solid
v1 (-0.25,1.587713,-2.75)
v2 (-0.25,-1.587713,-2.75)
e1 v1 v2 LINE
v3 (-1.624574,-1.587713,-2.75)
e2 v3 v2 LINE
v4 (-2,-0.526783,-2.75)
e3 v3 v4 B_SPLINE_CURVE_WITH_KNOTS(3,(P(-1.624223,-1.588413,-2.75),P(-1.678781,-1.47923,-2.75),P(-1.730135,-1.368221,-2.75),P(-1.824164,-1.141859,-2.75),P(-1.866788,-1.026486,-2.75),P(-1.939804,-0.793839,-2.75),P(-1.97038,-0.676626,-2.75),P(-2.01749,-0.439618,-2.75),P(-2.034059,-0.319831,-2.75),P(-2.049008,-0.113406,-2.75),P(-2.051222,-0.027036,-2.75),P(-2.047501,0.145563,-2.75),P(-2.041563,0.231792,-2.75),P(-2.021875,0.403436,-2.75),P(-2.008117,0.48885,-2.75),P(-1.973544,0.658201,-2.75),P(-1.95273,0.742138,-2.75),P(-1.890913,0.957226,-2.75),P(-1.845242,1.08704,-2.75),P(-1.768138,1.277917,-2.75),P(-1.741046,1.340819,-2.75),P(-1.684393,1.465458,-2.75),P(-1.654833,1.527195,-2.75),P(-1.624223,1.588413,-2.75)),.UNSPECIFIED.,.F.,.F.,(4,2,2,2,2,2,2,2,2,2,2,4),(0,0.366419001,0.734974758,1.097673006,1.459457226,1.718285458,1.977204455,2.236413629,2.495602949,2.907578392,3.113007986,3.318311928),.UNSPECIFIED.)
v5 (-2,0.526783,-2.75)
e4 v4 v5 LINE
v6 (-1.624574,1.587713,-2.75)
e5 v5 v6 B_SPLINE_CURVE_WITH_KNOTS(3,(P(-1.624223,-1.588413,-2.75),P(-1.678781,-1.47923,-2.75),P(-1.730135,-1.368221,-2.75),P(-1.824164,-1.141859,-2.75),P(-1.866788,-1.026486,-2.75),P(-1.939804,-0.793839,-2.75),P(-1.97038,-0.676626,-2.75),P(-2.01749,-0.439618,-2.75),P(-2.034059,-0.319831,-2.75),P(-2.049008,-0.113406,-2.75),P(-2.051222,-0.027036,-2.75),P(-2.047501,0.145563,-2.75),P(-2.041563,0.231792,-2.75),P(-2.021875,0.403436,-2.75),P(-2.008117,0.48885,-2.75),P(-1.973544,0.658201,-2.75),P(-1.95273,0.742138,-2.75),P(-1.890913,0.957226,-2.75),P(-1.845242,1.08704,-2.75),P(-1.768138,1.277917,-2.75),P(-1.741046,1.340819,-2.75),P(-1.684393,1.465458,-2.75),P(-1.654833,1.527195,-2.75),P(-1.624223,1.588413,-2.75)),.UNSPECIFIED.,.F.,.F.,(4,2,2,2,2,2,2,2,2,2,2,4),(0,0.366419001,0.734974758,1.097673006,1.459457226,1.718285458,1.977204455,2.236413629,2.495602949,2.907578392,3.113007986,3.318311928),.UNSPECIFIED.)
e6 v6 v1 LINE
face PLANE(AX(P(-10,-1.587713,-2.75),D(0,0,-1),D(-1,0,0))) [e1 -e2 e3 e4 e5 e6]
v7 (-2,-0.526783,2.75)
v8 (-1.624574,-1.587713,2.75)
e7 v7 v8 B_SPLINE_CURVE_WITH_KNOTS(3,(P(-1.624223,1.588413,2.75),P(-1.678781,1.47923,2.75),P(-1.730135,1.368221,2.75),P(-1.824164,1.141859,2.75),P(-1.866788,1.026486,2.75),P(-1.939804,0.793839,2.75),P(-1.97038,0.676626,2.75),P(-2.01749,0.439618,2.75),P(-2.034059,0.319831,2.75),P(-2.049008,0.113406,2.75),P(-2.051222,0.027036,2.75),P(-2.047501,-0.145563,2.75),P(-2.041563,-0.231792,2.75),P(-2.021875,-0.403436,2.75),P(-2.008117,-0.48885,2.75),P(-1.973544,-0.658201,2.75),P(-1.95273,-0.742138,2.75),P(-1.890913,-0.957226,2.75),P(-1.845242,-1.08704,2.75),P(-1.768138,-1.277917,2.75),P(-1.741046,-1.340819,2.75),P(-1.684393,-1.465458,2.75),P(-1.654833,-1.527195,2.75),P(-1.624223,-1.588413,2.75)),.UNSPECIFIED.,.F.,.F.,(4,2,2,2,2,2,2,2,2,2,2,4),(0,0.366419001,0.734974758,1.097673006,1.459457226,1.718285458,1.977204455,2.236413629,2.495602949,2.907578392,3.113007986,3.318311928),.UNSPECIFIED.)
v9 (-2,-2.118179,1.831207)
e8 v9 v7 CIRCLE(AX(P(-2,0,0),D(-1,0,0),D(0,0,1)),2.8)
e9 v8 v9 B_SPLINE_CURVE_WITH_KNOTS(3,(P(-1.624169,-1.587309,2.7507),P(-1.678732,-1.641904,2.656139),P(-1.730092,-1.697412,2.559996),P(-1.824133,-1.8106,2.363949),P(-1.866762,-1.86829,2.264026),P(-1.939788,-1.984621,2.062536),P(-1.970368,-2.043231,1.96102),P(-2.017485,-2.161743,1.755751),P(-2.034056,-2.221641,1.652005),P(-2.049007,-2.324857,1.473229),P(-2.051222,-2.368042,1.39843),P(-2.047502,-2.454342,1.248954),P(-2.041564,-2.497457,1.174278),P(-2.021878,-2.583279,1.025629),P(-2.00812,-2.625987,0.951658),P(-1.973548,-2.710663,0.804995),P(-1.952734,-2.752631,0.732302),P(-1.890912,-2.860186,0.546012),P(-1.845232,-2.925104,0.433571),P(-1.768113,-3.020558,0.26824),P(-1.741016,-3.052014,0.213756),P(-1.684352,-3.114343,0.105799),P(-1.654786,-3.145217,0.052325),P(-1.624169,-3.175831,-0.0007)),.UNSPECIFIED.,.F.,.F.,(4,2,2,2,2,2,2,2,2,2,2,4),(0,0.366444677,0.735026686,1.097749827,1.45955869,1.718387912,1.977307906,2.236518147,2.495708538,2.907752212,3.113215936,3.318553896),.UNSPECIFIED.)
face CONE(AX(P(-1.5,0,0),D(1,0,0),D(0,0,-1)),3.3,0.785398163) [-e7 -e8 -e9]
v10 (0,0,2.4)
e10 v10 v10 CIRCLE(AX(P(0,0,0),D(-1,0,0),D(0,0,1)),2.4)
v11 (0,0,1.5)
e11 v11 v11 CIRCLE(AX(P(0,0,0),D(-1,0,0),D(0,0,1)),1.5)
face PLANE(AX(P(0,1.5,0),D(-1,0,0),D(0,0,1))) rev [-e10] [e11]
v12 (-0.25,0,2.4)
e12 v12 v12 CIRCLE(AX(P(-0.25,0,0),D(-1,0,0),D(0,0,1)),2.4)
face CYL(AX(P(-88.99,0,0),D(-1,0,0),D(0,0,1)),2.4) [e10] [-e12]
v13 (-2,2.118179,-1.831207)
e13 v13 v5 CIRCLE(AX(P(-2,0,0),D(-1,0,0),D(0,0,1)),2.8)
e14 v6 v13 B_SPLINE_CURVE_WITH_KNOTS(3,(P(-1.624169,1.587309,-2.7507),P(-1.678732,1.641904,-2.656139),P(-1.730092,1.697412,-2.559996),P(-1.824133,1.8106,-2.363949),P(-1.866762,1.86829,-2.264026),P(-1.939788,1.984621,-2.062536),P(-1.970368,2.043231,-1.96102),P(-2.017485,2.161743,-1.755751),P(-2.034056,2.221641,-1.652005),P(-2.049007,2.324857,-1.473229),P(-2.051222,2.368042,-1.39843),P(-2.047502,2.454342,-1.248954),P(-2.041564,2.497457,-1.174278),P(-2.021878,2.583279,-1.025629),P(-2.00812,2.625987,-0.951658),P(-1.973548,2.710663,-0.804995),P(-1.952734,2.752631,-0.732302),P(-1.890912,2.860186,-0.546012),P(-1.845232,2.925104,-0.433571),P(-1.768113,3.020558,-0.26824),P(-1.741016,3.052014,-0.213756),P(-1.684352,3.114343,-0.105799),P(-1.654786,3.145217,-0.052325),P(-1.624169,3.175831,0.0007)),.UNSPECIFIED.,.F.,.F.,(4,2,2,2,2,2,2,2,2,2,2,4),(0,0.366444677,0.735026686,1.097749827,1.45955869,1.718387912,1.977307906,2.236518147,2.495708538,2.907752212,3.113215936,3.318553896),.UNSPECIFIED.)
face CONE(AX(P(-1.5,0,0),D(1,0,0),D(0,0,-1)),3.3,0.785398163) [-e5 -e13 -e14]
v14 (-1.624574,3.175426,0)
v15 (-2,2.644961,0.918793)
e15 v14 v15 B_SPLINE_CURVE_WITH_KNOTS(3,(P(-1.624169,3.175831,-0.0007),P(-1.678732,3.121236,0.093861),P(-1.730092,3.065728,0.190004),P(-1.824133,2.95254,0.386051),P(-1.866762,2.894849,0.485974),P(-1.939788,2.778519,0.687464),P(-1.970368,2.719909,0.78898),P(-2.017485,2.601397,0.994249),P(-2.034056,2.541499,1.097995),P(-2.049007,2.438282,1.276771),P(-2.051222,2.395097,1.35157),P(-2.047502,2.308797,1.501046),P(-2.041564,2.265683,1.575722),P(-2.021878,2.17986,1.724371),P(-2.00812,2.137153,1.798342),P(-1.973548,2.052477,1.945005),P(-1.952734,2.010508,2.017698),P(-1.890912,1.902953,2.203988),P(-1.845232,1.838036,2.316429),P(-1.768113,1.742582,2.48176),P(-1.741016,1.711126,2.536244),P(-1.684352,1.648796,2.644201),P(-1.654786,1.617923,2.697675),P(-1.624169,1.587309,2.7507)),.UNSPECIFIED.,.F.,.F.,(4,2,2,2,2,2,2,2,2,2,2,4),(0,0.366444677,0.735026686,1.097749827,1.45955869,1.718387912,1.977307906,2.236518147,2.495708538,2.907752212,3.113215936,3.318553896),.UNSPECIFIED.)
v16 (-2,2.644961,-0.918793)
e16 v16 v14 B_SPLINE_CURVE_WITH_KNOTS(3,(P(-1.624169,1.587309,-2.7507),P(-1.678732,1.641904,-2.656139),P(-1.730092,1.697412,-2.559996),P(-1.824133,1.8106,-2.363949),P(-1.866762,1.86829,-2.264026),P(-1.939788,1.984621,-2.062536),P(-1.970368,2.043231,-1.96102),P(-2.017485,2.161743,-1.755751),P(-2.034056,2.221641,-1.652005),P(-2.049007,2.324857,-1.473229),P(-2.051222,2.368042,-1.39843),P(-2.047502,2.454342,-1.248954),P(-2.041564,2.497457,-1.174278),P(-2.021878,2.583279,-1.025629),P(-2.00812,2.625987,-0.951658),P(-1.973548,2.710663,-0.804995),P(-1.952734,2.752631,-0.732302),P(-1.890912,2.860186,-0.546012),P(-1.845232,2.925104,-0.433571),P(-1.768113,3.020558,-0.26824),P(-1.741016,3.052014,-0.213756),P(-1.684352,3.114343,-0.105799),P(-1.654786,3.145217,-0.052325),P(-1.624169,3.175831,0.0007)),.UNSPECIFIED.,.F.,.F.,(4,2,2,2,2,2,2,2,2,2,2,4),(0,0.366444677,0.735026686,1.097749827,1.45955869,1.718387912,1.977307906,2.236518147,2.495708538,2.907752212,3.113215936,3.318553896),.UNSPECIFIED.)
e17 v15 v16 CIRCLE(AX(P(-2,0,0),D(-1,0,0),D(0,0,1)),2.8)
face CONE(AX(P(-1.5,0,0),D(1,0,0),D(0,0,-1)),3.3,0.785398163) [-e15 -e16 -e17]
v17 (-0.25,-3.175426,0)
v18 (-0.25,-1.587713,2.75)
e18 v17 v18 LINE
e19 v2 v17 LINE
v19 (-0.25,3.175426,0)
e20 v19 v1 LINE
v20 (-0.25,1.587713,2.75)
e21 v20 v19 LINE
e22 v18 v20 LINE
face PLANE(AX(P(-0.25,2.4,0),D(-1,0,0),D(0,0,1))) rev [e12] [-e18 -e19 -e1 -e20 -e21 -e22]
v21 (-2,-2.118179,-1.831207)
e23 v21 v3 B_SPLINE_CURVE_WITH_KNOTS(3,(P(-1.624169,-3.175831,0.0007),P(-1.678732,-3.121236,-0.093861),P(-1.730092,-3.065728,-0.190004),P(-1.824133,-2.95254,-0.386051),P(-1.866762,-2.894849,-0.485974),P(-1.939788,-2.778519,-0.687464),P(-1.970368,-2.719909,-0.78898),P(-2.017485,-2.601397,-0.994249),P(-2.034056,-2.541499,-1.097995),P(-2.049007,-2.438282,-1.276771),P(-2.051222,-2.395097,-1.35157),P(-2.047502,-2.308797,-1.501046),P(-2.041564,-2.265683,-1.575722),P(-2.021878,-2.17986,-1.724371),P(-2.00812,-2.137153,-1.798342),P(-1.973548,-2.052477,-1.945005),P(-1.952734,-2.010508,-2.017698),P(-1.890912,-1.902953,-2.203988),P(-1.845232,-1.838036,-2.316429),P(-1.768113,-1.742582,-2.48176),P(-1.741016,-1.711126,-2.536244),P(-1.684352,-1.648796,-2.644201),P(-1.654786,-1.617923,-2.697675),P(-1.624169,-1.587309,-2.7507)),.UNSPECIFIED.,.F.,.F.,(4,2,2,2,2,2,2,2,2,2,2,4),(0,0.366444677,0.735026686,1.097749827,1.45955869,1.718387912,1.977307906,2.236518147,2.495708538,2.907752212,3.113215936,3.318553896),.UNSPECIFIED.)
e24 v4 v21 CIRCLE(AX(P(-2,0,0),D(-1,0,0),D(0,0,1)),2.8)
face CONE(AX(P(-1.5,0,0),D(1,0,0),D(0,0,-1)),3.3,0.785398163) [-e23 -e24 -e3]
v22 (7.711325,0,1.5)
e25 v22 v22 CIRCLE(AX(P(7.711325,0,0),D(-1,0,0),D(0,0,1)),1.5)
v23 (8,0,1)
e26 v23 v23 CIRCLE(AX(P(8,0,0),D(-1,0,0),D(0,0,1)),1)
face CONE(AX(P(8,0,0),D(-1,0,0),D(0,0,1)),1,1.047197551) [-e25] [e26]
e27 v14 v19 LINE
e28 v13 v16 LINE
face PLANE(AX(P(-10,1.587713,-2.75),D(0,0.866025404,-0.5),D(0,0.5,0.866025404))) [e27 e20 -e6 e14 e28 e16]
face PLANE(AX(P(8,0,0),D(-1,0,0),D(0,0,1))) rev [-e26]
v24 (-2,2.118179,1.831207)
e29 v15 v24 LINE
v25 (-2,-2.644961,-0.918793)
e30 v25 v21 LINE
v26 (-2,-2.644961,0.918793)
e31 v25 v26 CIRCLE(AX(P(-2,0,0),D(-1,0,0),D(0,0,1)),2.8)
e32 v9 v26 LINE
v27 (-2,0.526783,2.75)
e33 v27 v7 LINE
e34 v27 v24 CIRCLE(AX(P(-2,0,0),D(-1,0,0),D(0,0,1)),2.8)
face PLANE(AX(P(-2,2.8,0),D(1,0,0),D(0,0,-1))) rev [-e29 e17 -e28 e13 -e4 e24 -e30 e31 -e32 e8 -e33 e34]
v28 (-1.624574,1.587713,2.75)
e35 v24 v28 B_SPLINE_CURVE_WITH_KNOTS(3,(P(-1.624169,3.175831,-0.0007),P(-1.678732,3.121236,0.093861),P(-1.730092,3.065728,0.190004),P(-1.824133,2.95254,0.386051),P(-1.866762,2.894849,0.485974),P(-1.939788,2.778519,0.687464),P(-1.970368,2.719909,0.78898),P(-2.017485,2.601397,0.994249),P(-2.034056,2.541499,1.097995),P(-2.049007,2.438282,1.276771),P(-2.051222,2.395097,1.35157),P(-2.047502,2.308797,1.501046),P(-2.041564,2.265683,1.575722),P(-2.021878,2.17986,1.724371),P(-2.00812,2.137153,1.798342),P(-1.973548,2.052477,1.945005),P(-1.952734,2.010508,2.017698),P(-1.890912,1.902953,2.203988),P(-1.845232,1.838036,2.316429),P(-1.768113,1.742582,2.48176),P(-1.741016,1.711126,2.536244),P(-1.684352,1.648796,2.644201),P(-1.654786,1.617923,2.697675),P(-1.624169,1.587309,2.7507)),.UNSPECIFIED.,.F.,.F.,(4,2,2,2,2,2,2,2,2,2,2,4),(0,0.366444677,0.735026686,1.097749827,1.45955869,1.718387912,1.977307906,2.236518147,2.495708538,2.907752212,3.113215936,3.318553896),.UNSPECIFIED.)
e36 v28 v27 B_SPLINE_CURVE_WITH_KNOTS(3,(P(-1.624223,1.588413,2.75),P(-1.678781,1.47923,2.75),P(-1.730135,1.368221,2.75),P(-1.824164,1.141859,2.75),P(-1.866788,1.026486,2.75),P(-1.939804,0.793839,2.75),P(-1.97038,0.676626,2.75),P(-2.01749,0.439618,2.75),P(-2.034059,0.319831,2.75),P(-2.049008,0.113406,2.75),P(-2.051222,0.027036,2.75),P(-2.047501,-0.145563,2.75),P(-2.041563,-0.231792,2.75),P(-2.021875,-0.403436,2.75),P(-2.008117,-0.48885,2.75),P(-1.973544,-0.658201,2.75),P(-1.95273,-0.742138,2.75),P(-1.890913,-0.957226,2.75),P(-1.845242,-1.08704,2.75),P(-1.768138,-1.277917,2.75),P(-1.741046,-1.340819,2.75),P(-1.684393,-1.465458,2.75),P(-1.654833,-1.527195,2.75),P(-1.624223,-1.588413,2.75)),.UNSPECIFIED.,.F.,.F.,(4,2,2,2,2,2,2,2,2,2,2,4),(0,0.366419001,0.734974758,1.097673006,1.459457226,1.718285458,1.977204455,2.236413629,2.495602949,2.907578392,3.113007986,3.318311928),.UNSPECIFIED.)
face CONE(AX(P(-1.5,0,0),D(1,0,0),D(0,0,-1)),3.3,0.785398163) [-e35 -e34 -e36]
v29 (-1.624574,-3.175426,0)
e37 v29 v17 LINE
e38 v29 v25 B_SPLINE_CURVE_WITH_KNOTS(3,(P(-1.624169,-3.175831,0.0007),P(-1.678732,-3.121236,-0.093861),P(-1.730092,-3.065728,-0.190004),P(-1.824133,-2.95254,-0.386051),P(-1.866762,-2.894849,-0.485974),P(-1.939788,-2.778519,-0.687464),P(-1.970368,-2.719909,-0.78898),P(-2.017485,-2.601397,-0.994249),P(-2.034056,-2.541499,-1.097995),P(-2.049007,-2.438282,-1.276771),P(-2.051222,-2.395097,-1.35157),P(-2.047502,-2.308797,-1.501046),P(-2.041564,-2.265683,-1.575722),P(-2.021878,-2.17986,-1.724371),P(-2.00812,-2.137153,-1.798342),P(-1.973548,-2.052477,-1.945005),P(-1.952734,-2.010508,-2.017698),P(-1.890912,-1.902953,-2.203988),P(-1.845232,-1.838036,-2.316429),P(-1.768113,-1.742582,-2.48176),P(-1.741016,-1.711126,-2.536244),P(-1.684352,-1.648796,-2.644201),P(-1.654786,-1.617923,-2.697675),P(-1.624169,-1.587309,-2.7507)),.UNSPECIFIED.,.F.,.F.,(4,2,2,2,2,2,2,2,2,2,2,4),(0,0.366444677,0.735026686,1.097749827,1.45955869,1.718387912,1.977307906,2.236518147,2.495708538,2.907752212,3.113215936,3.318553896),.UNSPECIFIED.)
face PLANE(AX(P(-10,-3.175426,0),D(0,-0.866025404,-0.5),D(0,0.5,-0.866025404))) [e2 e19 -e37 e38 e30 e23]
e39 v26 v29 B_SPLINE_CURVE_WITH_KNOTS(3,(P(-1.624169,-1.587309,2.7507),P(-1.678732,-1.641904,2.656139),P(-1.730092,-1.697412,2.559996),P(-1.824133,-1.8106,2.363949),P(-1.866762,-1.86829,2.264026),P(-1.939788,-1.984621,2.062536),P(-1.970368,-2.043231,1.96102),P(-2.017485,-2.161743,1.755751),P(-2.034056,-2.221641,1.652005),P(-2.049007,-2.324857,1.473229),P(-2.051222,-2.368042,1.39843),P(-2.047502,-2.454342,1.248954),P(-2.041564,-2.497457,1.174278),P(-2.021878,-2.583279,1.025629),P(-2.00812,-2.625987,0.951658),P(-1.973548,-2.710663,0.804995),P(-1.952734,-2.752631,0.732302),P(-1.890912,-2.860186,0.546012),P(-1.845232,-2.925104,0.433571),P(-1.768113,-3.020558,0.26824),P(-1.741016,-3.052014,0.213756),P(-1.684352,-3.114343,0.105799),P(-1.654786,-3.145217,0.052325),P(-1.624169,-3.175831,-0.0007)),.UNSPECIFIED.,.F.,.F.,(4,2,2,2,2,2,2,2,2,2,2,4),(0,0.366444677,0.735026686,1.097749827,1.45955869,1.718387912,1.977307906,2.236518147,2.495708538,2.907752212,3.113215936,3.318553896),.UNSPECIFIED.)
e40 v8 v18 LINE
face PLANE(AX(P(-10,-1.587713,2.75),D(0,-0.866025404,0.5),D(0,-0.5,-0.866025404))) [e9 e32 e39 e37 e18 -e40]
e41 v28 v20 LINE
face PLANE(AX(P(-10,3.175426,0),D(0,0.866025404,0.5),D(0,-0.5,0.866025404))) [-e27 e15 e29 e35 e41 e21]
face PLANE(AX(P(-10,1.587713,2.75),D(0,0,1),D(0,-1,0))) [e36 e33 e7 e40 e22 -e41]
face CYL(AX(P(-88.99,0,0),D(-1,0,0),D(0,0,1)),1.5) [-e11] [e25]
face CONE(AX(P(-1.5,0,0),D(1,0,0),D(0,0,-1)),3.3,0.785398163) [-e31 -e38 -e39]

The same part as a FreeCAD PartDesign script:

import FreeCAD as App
import Part
import Sketcher

V = App.Vector
Q = App.Units.Quantity

doc = App.newDocument("Part")
body = doc.addObject("PartDesign::Body", "Body")

# Sketch on XY plane
sketch1 = body.newObject("Sketcher::SketchObject", "Sketch")
sketch1.AttachmentSupport = (doc.getObject("XY_Plane"), [""])
sketch1.MapMode = "FlatFace"
sketch1.addGeometry(Part.LineSegment(V(0, 1.5, 0), V(0, 2.4, 0)), False)
sketch1.addGeometry(Part.LineSegment(V(0, 2.4, 0), V(-0.25, 2.4, 0)), False)
sketch1.addGeometry(Part.LineSegment(V(-0.25, 2.4, 0), V(-0.25, 3.3, 0)), False)
sketch1.addGeometry(Part.LineSegment(V(-0.25, 3.3, 0), V(-1.5, 3.3, 0)), False)
sketch1.addGeometry(Part.LineSegment(V(-1.5, 3.3, 0), V(-2, 2.8, 0)), False)
sketch1.addGeometry(Part.LineSegment(V(-2, 2.8, 0), V(-2, 0, 0)), False)
sketch1.addGeometry(Part.LineSegment(V(-2, 0, 0), V(8, 0, 0)), False)
sketch1.addGeometry(Part.LineSegment(V(8, 0, 0), V(8, 1, 0)), False)
sketch1.addGeometry(Part.LineSegment(V(8, 1, 0), V(7.71, 1.5, 0)), False)
sketch1.addGeometry(Part.LineSegment(V(7.71, 1.5, 0), V(0, 1.5, 0)), False)
sketch1.addConstraint(Sketcher.Constraint("Coincident", 0, 2, 1, 1))
sketch1.addConstraint(Sketcher.Constraint("Coincident", 1, 2, 2, 1))
sketch1.addConstraint(Sketcher.Constraint("Coincident", 2, 2, 3, 1))
sketch1.addConstraint(Sketcher.Constraint("Coincident", 3, 2, 4, 1))
sketch1.addConstraint(Sketcher.Constraint("Coincident", 4, 2, 5, 1))
sketch1.addConstraint(Sketcher.Constraint("Coincident", 5, 2, 6, 1))
sketch1.addConstraint(Sketcher.Constraint("Coincident", 6, 2, 7, 1))
sketch1.addConstraint(Sketcher.Constraint("Coincident", 7, 2, 8, 1))
sketch1.addConstraint(Sketcher.Constraint("Coincident", 8, 2, 9, 1))
sketch1.addConstraint(Sketcher.Constraint("Coincident", 9, 2, 0, 1))
sketch1.addConstraint(Sketcher.Constraint("Vertical", 0))
sketch1.addConstraint(Sketcher.Constraint("Horizontal", 1))
sketch1.addConstraint(Sketcher.Constraint("Vertical", 2))
sketch1.addConstraint(Sketcher.Constraint("Horizontal", 3))
sketch1.addConstraint(Sketcher.Constraint("Vertical", 5))
sketch1.addConstraint(Sketcher.Constraint("Horizontal", 6))
sketch1.addConstraint(Sketcher.Constraint("Vertical", 7))
sketch1.addConstraint(Sketcher.Constraint("Horizontal", 9))
sketch1.addConstraint(Sketcher.Constraint("PointOnObject", 0, 2, -2))
sketch1.addConstraint(Sketcher.Constraint("PointOnObject", 5, 2, -1))
sketch1.addConstraint(Sketcher.Constraint("Equal", 0, 2))
sketch1.addConstraint(Sketcher.Constraint("DistanceX", 6, 1, 6, 2, Q("10 mm")))
sketch1.addConstraint(Sketcher.Constraint("DistanceY", 7, 1, 7, 2, Q("1 mm")))
sketch1.addConstraint(Sketcher.Constraint("Angle", 4, Q("-135 deg")))
sketch1.addConstraint(Sketcher.Constraint("Angle", 8, Q("120 deg")))
sketch1.addConstraint(Sketcher.Constraint("DistanceY", 0, 1, 0, 2, Q("0.9 mm")))
sketch1.addConstraint(Sketcher.Constraint("DistanceY", 5, 2, 5, 1, Q("2.8 mm")))
sketch1.addConstraint(Sketcher.Constraint("DistanceX", 4, 2, -1, 1, Q("2 mm")))
sketch1.addConstraint(Sketcher.Constraint("DistanceX", 1, 2, 1, 1, Q("0.25 mm")))
sketch1.addConstraint(Sketcher.Constraint("DistanceX", 3, 2, 3, 1, Q("1.25 mm")))
revolution = body.newObject("PartDesign::Revolution", "Revolution")
revolution.Profile = sketch1
revolution.ReferenceAxis = (sketch1, ["H_Axis"])
revolution.Angle = 360

# Sketch on YZ plane
sketch2 = body.newObject("Sketcher::SketchObject", "Sketch001")
sketch2.AttachmentSupport = (doc.getObject("YZ_Plane"), [""])
sketch2.MapMode = "FlatFace"
sketch2.addGeometry(Part.LineSegment(V(5.7, 5.7, 0), V(-5.7, 5.7, 0)), False)
sketch2.addGeometry(Part.LineSegment(V(-5.7, 5.7, 0), V(-5.7, -5.7, 0)), False)
sketch2.addGeometry(Part.LineSegment(V(-5.7, -5.7, 0), V(5.7, -5.7, 0)), False)
sketch2.addGeometry(Part.LineSegment(V(5.7, -5.7, 0), V(5.7, 5.7, 0)), False)
sketch2.addGeometry(Part.LineSegment(V(1.6, 2.8, 0), V(3.2, 0, 0)), False)
sketch2.addGeometry(Part.LineSegment(V(3.2, 0, 0), V(1.6, -2.8, 0)), False)
sketch2.addGeometry(Part.LineSegment(V(1.6, -2.8, 0), V(-1.6, -2.8, 0)), False)
sketch2.addGeometry(Part.LineSegment(V(-1.6, -2.8, 0), V(-3.2, 0, 0)), False)
sketch2.addGeometry(Part.LineSegment(V(-3.2, 0, 0), V(-1.6, 2.8, 0)), False)
sketch2.addGeometry(Part.LineSegment(V(-1.6, 2.8, 0), V(1.6, 2.8, 0)), False)
sketch2.addConstraint(Sketcher.Constraint("Coincident", 0, 2, 1, 1))
sketch2.addConstraint(Sketcher.Constraint("Coincident", 1, 2, 2, 1))
sketch2.addConstraint(Sketcher.Constraint("Coincident", 2, 2, 3, 1))
sketch2.addConstraint(Sketcher.Constraint("Coincident", 3, 2, 0, 1))
sketch2.addConstraint(Sketcher.Constraint("Coincident", 4, 2, 5, 1))
sketch2.addConstraint(Sketcher.Constraint("Coincident", 5, 2, 6, 1))
sketch2.addConstraint(Sketcher.Constraint("Coincident", 6, 2, 7, 1))
sketch2.addConstraint(Sketcher.Constraint("Coincident", 7, 2, 8, 1))
sketch2.addConstraint(Sketcher.Constraint("Coincident", 8, 2, 9, 1))
sketch2.addConstraint(Sketcher.Constraint("Coincident", 9, 2, 4, 1))
sketch2.addConstraint(Sketcher.Constraint("Horizontal", 0))
sketch2.addConstraint(Sketcher.Constraint("Vertical", 1))
sketch2.addConstraint(Sketcher.Constraint("Horizontal", 2))
sketch2.addConstraint(Sketcher.Constraint("Vertical", 3))
sketch2.addConstraint(Sketcher.Constraint("Horizontal", 6))
sketch2.addConstraint(Sketcher.Constraint("Horizontal", 9))
sketch2.addConstraint(Sketcher.Constraint("Symmetric", 0, 2, 2, 2, -1, 1))
sketch2.addConstraint(Sketcher.Constraint("Symmetric", 4, 2, 7, 2, -1, 1))
sketch2.addConstraint(Sketcher.Constraint("Symmetric", 5, 2, 8, 2, -1, 1))
sketch2.addConstraint(Sketcher.Constraint("PointOnObject", 4, 2, -1))
sketch2.addConstraint(Sketcher.Constraint("Parallel", 4, 7))
sketch2.addConstraint(Sketcher.Constraint("Vertical", 6, 2, 8, 2))
sketch2.addConstraint(Sketcher.Constraint("Equal", 2, 1))
sketch2.addConstraint(Sketcher.Constraint("Angle", 4, Q("-60 deg")))
sketch2.addConstraint(Sketcher.Constraint("DistanceY", 6, 2, 8, 2, Q("5.5 mm")))
sketch2.addConstraint(Sketcher.Constraint("DistanceX", 0, 2, 0, 1, Q("11.336 mm")))
sketch2.addConstraint(Sketcher.Constraint("DistanceX", 6, 2, 6, 1, Q("3.175426 mm")))
pocket1 = body.newObject("PartDesign::Pocket", "Pocket")
pocket1.Profile = sketch2
pocket1.Length = 10

doc.recompute()
